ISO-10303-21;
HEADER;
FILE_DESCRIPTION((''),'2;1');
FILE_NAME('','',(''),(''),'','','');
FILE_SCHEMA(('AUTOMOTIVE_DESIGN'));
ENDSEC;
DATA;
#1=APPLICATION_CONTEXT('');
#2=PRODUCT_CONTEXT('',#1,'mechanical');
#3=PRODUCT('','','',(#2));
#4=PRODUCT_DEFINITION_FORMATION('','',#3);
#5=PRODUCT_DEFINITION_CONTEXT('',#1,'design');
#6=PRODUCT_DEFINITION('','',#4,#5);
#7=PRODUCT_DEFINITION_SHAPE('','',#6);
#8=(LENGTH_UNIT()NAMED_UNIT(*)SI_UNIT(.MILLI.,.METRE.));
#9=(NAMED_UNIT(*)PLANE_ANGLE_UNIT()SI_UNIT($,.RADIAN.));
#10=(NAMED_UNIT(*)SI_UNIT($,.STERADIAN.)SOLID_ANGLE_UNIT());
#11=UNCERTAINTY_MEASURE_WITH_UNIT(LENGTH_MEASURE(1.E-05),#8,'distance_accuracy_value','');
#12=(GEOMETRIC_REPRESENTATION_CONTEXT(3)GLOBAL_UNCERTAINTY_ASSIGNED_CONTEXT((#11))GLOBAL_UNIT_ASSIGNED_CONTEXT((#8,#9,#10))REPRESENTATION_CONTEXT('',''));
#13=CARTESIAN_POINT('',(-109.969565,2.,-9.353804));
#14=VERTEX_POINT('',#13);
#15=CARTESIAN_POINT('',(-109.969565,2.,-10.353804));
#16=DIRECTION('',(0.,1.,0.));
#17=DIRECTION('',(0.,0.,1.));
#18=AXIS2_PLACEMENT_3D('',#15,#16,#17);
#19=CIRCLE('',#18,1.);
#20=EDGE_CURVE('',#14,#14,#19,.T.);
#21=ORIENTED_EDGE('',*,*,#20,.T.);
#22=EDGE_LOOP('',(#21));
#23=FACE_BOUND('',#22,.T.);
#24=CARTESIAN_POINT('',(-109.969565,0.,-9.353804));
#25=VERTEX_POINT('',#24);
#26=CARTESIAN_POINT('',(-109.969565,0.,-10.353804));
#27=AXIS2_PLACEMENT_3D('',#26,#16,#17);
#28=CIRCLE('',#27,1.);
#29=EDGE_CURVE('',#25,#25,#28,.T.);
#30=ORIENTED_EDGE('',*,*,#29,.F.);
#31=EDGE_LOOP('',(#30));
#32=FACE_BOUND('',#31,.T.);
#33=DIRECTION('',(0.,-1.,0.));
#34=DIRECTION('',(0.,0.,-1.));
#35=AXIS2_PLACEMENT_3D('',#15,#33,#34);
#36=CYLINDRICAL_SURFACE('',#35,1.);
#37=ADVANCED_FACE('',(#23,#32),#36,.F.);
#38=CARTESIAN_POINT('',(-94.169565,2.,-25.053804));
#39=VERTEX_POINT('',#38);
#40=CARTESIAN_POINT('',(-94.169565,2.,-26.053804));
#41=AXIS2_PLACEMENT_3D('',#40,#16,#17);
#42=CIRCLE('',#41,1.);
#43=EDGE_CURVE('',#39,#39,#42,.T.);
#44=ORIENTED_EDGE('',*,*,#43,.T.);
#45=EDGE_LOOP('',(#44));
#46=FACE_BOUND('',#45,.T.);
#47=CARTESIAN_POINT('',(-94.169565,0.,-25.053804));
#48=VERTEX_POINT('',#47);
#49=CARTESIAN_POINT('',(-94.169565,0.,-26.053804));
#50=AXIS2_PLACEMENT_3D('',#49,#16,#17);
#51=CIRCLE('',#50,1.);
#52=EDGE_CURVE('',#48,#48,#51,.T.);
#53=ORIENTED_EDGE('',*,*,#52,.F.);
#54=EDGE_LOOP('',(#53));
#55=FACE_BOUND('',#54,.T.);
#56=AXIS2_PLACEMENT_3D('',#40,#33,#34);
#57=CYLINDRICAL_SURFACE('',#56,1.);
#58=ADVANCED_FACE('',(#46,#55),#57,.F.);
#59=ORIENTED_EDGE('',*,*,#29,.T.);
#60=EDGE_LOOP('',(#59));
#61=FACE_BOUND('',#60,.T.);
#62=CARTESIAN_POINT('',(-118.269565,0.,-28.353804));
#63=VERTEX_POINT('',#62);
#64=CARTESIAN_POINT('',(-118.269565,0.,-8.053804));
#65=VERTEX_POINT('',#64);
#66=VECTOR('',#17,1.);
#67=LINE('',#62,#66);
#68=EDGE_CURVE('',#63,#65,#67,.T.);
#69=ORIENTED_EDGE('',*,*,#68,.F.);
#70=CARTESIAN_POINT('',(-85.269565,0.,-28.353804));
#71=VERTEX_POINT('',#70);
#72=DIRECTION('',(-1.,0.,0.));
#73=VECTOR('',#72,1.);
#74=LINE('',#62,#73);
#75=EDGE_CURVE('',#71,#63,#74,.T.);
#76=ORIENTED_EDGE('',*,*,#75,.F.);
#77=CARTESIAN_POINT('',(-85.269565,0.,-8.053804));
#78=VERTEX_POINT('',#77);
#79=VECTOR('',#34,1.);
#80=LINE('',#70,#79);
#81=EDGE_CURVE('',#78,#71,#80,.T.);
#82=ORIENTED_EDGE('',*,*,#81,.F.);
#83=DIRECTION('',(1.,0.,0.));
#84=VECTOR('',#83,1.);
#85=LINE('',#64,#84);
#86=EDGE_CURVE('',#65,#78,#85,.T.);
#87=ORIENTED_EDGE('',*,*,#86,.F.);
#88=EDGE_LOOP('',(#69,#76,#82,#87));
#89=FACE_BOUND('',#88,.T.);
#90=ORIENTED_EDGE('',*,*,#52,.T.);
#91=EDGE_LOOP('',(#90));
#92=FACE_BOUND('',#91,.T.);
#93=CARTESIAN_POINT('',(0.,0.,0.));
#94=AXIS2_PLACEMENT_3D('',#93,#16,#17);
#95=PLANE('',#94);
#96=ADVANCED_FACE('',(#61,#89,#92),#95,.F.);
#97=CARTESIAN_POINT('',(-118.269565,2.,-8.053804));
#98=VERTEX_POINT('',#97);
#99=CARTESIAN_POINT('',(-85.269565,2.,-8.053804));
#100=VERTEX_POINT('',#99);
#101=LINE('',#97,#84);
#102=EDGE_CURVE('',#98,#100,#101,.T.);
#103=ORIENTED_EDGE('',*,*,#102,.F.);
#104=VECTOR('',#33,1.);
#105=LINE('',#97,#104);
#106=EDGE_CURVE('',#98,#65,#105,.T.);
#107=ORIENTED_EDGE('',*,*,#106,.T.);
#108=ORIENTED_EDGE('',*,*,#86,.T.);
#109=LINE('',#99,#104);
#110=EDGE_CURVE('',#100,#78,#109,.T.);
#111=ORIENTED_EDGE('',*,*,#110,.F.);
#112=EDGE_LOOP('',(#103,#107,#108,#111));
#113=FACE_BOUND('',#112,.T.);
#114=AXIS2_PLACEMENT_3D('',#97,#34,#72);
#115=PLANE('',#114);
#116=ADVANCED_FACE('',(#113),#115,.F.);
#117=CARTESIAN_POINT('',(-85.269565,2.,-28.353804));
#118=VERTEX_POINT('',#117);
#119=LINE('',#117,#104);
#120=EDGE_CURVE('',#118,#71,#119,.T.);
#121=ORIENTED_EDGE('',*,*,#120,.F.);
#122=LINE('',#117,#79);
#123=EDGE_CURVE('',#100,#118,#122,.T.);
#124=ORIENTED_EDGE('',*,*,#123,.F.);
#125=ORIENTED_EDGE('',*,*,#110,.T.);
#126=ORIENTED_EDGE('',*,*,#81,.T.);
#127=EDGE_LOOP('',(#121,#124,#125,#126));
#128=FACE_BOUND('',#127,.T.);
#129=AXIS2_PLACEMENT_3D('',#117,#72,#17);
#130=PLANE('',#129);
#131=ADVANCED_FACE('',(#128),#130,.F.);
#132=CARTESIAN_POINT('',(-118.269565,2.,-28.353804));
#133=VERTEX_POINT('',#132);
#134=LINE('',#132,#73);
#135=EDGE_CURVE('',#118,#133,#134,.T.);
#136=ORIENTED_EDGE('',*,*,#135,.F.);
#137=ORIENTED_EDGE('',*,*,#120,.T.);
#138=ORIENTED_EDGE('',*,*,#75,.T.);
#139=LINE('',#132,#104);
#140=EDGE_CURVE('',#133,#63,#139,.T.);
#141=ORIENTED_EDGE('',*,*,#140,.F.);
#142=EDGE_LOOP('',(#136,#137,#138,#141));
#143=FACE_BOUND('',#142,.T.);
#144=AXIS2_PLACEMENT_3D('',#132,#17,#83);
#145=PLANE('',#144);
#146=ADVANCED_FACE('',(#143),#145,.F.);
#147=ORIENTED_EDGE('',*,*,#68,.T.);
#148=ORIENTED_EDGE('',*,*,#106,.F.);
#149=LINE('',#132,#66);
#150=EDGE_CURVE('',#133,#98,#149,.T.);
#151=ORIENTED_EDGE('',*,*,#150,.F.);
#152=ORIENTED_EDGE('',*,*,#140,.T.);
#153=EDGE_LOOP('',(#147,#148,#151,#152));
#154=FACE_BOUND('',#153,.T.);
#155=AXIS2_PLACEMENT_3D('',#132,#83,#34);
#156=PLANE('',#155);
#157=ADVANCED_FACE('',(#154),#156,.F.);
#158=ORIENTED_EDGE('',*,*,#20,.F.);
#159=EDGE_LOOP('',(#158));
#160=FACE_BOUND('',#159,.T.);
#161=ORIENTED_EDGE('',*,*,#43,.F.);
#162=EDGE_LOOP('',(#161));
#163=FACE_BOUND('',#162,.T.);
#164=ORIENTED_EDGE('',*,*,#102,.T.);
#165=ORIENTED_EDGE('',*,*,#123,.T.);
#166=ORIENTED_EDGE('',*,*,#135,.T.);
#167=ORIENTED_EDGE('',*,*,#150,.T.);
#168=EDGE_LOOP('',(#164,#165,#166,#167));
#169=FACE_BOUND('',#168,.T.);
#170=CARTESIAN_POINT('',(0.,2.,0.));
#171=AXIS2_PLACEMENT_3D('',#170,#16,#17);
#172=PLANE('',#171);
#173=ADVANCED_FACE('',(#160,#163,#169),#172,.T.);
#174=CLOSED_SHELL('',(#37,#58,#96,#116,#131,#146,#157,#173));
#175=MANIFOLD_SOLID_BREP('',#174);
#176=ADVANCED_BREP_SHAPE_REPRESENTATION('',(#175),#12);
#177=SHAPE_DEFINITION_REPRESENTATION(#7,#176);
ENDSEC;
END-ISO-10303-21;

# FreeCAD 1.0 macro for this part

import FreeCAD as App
import Part
import Sketcher
Q = App.Units.Quantity


def add_polygon(sketch, points):
    """Adds a closed chain of lines whose ends are joined by coincident constraints."""
    first, n = sketch.GeometryCount, len(points)
    for a, b in zip(points, points[1:] + points[:1]):
        sketch.addGeometry(Part.LineSegment(App.Vector(*a, 0), App.Vector(*b, 0)), False)
    for i in range(n):
        sketch.addConstraint(Sketcher.Constraint("Coincident", first + i, 2, first + (i + 1) % n, 1))

doc = App.newDocument("Part")
body = doc.addObject("PartDesign::Body", "Body")

sketch1 = body.newObject("Sketcher::SketchObject", "Sketch")
sketch1.AttachmentSupport = (doc.getObject("XZ_Plane"), [""])
sketch1.MapMode = "FlatFace"
add_polygon(sketch1, [(-118.3, -28.4), (-118.3, -8.1), (-85.3, -8.1), (-85.3, -28.4)])
sketch1.addGeometry(Part.Circle(App.Vector(-110, -10.4, 0), App.Vector(0, 0, 1), 1), False)
sketch1.addGeometry(Part.Circle(App.Vector(-94.2, -26.1, 0), App.Vector(0, 0, 1), 1), False)
sketch1.addConstraint([
    Sketcher.Constraint("Vertical", 0),
    Sketcher.Constraint("Horizontal", 1),
    Sketcher.Constraint("Vertical", 2),
    Sketcher.Constraint("Horizontal", 3),
    Sketcher.Constraint("Equal", 4, 5),
    Sketcher.Constraint("Diameter", 4, Q("2 mm")),
    Sketcher.Constraint("DistanceX", 1, 1, 1, 2, Q("33 mm")),
    Sketcher.Constraint("DistanceY", 0, 1, 0, 2, Q("20.3 mm")),
    Sketcher.Constraint("DistanceY", 5, 3, 0, 2, Q("18 mm")),
    Sketcher.Constraint("DistanceY", 2, 2, 4, 3, Q("18 mm")),
    Sketcher.Constraint("DistanceX", 4, 3, 5, 3, Q("15.8 mm")),
    Sketcher.Constraint("DistanceX", 0, 2, 4, 3, Q("8.3 mm")),
    Sketcher.Constraint("DistanceX", 4, 3, -1, 1, Q("109.969565 mm")),
    Sketcher.Constraint("DistanceY", 4, 3, -1, 1, Q("10.353804 mm")),
])
pad1 = body.newObject("PartDesign::Pad", "Pad")
pad1.Profile = sketch1
pad1.Length = 2
pad1.Reversed = True

doc.recompute()
